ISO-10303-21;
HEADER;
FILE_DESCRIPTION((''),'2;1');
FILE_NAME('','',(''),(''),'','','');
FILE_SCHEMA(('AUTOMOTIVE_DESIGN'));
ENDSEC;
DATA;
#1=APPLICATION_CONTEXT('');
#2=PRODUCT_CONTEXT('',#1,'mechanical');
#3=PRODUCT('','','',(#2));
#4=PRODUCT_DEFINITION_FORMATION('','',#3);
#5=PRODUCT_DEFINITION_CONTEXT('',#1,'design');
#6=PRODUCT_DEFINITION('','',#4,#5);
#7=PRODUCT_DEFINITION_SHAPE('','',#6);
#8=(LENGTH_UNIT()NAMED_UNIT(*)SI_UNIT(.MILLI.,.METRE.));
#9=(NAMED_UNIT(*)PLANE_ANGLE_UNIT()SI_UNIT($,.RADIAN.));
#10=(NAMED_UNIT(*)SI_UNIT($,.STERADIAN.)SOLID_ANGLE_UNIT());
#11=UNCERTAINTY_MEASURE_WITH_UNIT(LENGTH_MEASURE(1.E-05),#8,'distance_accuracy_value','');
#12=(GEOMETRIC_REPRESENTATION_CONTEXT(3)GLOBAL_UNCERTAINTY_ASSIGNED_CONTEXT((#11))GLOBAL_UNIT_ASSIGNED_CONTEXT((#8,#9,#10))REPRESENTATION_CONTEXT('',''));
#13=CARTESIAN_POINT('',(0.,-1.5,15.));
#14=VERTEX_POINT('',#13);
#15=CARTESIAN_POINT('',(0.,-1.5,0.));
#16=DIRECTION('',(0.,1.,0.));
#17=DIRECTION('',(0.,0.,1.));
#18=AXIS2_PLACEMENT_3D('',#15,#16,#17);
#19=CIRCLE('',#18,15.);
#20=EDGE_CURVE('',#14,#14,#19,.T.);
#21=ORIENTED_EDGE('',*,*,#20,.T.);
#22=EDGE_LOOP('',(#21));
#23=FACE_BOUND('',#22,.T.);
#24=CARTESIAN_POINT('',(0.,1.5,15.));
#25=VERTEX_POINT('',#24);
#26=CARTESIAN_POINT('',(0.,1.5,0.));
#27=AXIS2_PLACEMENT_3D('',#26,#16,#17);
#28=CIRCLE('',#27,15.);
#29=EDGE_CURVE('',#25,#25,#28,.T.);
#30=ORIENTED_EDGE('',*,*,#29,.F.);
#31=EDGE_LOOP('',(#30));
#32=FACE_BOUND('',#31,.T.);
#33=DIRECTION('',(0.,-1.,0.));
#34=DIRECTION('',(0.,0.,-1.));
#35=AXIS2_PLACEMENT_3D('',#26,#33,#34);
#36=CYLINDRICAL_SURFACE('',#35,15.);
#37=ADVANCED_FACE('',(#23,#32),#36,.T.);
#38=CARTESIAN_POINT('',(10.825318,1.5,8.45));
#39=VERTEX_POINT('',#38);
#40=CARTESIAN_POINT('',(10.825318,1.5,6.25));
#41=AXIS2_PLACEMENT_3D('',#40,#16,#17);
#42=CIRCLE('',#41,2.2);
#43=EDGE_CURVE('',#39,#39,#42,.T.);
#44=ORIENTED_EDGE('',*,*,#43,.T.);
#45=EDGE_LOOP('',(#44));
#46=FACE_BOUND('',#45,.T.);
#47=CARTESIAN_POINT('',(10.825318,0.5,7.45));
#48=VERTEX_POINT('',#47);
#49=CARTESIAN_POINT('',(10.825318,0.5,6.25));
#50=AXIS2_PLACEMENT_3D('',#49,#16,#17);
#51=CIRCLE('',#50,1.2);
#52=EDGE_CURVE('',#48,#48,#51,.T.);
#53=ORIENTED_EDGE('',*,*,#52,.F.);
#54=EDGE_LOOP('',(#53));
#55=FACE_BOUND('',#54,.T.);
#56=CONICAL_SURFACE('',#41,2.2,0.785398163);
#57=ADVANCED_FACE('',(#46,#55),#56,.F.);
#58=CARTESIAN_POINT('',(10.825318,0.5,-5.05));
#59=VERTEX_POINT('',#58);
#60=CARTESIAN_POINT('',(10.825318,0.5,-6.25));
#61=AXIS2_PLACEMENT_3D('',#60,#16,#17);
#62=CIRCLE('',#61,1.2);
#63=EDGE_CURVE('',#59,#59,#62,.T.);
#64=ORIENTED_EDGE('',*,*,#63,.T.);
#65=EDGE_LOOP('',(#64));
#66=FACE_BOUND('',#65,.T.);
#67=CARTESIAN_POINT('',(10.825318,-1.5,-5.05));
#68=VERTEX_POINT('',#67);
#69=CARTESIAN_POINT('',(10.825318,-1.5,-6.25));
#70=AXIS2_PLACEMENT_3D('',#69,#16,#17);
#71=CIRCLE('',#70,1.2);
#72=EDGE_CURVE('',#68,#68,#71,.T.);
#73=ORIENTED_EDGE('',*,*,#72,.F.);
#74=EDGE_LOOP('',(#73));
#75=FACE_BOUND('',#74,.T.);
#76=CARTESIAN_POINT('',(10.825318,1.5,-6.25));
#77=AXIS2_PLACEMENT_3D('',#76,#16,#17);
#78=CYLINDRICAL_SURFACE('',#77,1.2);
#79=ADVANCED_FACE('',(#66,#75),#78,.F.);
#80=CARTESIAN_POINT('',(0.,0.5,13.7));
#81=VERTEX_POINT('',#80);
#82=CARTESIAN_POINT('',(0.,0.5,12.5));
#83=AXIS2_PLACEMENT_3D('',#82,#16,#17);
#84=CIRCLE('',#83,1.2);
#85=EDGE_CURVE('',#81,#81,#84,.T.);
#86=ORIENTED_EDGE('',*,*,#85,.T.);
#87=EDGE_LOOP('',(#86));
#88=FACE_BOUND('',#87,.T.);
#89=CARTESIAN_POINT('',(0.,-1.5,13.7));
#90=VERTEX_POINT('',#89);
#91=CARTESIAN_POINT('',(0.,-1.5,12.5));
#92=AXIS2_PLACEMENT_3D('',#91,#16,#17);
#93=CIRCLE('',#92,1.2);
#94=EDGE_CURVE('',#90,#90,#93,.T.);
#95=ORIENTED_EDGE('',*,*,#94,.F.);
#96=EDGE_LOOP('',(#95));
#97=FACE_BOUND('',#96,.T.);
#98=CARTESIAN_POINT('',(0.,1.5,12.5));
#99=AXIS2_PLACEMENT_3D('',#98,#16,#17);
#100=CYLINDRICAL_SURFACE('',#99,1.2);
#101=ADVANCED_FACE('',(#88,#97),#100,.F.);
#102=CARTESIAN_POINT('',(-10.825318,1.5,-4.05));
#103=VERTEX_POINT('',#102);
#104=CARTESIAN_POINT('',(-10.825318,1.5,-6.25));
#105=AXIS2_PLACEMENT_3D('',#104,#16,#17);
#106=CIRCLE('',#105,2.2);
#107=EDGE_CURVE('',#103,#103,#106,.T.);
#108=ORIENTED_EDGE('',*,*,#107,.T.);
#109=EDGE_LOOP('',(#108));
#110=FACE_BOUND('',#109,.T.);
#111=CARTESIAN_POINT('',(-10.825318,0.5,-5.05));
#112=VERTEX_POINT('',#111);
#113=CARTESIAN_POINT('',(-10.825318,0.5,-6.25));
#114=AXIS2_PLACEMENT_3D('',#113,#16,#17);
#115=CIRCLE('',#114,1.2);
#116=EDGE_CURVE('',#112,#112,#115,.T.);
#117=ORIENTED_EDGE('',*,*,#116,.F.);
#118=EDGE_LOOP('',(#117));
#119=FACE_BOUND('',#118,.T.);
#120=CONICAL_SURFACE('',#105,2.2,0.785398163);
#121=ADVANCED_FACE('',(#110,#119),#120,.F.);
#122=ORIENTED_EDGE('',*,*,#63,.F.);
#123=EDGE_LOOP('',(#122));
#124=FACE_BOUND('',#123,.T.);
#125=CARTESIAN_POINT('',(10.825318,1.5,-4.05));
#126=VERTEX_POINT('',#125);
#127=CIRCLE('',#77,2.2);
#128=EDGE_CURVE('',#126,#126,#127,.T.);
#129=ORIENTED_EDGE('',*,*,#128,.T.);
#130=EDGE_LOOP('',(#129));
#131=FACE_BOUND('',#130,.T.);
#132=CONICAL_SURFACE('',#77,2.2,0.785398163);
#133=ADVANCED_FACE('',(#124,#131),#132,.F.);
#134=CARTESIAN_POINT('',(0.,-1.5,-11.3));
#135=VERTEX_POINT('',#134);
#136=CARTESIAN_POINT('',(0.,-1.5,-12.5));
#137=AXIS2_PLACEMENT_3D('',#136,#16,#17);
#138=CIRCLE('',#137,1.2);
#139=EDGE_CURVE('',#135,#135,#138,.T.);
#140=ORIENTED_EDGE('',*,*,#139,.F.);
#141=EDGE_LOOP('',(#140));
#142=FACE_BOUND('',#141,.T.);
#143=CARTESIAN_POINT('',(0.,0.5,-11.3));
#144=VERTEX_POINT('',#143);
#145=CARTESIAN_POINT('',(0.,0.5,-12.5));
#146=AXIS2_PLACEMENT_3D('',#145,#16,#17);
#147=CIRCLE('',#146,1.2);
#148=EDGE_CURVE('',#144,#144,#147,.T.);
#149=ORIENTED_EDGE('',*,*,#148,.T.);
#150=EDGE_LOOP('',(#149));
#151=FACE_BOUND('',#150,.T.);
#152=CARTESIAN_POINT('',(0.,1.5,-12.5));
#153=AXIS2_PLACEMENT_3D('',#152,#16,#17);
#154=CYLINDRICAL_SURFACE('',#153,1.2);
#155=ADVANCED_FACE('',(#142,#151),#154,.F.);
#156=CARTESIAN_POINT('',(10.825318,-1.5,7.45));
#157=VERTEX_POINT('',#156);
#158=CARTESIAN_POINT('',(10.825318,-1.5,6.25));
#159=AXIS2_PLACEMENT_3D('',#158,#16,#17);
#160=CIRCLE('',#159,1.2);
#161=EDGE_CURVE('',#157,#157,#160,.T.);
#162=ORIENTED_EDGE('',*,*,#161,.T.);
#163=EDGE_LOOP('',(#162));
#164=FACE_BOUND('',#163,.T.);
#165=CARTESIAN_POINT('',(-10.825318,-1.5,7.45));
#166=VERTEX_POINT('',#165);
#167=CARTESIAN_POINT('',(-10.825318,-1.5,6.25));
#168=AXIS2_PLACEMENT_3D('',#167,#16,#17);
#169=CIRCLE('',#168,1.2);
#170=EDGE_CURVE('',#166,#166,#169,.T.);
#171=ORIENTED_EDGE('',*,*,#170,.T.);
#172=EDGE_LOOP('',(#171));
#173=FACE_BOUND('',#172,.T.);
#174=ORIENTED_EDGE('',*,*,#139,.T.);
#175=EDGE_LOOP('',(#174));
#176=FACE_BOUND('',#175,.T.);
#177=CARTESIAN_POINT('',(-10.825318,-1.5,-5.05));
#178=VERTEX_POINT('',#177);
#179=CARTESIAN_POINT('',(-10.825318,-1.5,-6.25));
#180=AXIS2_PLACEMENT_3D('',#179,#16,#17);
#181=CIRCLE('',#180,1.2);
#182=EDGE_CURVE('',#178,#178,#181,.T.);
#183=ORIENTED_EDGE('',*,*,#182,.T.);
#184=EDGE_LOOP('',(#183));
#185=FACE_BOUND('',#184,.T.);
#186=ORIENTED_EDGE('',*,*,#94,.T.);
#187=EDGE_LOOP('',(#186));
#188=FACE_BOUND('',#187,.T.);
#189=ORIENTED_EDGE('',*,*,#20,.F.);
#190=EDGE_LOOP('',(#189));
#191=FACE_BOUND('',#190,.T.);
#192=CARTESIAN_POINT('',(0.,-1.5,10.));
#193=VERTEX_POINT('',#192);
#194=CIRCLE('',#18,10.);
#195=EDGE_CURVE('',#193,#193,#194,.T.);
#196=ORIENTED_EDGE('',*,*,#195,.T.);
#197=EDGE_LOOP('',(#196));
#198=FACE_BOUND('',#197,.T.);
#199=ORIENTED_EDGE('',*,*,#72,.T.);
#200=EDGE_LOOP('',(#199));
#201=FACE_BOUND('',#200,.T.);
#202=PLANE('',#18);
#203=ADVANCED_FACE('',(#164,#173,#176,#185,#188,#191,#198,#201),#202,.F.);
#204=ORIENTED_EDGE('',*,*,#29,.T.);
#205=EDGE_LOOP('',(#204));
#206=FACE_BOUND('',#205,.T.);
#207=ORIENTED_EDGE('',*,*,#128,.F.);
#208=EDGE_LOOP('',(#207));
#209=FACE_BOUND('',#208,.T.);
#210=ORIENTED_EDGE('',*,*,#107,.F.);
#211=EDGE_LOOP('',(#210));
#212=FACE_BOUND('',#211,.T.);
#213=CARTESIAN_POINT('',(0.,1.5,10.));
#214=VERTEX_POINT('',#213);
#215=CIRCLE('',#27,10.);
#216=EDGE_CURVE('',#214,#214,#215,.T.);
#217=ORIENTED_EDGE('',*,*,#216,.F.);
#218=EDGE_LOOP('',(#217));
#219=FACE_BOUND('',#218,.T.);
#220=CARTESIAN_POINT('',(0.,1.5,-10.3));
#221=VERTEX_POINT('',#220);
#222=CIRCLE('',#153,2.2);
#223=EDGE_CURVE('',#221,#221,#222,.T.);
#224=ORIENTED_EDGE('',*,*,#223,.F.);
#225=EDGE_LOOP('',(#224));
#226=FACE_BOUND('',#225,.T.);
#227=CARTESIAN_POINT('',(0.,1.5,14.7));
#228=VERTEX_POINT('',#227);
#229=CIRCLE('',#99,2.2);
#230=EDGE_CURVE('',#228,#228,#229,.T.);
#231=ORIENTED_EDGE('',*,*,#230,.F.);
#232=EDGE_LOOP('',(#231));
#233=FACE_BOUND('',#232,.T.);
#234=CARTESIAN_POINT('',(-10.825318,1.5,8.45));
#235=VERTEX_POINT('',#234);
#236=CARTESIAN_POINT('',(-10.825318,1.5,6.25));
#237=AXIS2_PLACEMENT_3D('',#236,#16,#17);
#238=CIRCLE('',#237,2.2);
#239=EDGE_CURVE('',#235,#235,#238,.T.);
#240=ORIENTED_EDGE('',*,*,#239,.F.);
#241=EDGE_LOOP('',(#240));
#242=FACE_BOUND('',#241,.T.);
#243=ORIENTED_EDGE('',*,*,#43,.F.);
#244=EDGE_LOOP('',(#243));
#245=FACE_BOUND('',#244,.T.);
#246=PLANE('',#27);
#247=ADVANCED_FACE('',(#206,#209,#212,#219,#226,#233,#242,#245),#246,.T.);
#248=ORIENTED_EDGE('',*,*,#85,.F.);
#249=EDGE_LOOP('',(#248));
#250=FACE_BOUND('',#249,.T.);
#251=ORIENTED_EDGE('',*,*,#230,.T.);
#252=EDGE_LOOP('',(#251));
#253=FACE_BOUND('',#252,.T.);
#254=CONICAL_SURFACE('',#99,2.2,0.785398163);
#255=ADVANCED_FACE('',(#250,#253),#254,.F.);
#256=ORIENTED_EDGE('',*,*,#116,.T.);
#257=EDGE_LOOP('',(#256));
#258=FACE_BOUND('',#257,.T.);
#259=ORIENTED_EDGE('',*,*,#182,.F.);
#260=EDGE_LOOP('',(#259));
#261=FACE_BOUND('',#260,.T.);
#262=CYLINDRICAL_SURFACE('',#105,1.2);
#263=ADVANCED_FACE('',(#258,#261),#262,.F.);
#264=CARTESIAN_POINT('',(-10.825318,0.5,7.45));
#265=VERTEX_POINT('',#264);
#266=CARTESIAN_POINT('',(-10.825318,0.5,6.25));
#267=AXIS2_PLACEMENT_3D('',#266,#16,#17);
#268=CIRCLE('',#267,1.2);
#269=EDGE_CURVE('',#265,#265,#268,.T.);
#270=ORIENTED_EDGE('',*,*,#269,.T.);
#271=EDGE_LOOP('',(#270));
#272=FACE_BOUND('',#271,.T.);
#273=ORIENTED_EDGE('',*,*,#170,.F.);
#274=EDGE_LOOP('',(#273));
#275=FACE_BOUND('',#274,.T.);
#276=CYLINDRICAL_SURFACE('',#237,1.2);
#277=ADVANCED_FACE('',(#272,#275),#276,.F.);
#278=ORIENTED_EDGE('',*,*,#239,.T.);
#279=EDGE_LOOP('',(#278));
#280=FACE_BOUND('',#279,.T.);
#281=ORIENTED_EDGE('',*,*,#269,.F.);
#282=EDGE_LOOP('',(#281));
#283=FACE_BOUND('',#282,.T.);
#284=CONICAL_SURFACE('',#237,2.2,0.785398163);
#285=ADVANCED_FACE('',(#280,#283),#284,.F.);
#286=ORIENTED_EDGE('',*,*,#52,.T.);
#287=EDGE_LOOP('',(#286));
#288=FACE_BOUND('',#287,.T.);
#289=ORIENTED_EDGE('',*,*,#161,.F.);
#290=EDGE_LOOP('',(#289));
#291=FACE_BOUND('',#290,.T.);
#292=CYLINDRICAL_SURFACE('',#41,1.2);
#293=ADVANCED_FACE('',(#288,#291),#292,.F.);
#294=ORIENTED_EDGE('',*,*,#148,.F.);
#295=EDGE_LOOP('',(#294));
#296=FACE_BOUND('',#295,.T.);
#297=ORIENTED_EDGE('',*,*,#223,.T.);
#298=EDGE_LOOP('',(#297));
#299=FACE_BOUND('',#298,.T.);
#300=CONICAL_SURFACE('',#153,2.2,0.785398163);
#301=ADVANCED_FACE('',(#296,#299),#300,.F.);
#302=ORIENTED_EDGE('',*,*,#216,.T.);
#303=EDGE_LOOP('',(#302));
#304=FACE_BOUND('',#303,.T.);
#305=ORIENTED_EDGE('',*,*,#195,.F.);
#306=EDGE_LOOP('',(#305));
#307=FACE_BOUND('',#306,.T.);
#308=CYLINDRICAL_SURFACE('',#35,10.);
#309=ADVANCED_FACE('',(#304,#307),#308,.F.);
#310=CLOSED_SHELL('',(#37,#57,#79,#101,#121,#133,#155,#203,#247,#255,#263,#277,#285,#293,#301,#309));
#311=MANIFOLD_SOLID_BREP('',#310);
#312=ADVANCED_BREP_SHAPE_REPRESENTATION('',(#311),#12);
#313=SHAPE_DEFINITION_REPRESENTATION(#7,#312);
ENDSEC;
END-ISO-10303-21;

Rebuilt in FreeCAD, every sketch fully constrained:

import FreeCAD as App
import Part
import Sketcher

V = App.Vector
Q = App.Units.Quantity

doc = App.newDocument("Part")
params = doc.addObject("Spreadsheet::Sheet", "Params")
for row, (alias, value) in enumerate([
    ("sketch1_diameter", "30 mm"),
    ("sketch1_diameter2", "20 mm"),
    ("pad1_length", "3 mm"),
    ("sketch2_diameter", "2.4 mm"),
    ("hole_diameter", "2.4 mm"),
    ("hole_csink_diameter", "4.4 mm"),
], start=1):
    params.set(f"A{row}", alias)
    params.set(f"B{row}", "=" + value)
    params.setAlias(f"B{row}", alias)

body = doc.addObject("PartDesign::Body", "Body")

# Sketch on XZ plane
sketch1 = body.newObject("Sketcher::SketchObject", "Sketch")
sketch1.AttachmentSupport = (doc.getObject("XZ_Plane"), [""])
sketch1.MapMode = "FlatFace"
sketch1.addGeometry([
    Part.Circle(V(0, 0, 0), V(0, 0, 1), 15),
    Part.Circle(V(0, 0, 0), V(0, 0, 1), 10),
], False)
sketch1.addConstraint([
    Sketcher.Constraint("Coincident", 0, 3, -1, 1),
    Sketcher.Constraint("Coincident", 1, 3, -1, 1),
    Sketcher.Constraint("Diameter", 0, Q("30 mm")),
    Sketcher.Constraint("Diameter", 1, Q("20 mm")),
])
sketch1.setExpression("Constraints[2]", "Params.sketch1_diameter")
sketch1.setExpression("Constraints[3]", "Params.sketch1_diameter2")
pad1 = body.newObject("PartDesign::Pad", "Pad")
pad1.Profile = sketch1
pad1.setExpression("Length", "Params.pad1_length")
pad1.Midplane = True

# Sketch on XZ plane
sketch2 = body.newObject("Sketcher::SketchObject", "Sketch001")
sketch2.AttachmentSupport = (doc.getObject("XZ_Plane"), [""])
sketch2.MapMode = "FlatFace"
sketch2.AttachmentOffset = App.Placement(V(0, 0, -1.5), App.Rotation())
sketch2.addGeometry(Part.Circle(V(0, -12.5, 0), V(0, 0, 1), 1.2), False)
sketch2.addConstraint([
    Sketcher.Constraint("PointOnObject", 0, 3, -2),
    Sketcher.Constraint("Diameter", 0, Q("2.4 mm")),
    Sketcher.Constraint("DistanceY", 0, 3, -1, 1, Q("12.5 mm")),
])
sketch2.setExpression("Constraints[1]", "Params.sketch2_diameter")
doc.recompute()
hole = body.newObject("PartDesign::Hole", "Hole")
hole.Profile = sketch2
hole.ThreadType = "None"
hole.setExpression("Diameter", "Params.hole_diameter")
hole.DepthType = "ThroughAll"
hole.HoleCutType = "Countersink"
hole.setExpression("HoleCutDiameter", "Params.hole_csink_diameter")
hole.HoleCutCountersinkAngle = 90
hole.Reversed = True
doc.recompute()

polarpattern = body.newObject("PartDesign::PolarPattern", "PolarPattern")
polarpattern.Originals = [hole]
polarpattern.Axis = (doc.getObject("Y_Axis"), [""])
polarpattern.Angle = 360
polarpattern.Occurrences = 6
body.Tip = polarpattern

doc.recompute()
